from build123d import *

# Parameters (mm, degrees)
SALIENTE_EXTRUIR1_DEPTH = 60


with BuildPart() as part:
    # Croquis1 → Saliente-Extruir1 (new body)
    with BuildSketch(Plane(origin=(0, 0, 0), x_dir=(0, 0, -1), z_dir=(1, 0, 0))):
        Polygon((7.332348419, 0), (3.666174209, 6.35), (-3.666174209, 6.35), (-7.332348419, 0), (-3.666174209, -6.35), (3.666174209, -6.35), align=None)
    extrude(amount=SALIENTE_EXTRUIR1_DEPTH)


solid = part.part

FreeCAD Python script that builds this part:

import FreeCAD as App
import Part
import Sketcher
from FreeCAD import Vector
Q = App.Units.Quantity


def add_polygon(sketch, points):
    """Adds a closed chain of lines whose ends are joined by coincident constraints."""
    first, n = sketch.GeometryCount, len(points)
    for a, b in zip(points, points[1:] + points[:1]):
        sketch.addGeometry(Part.LineSegment(App.Vector(*a, 0), App.Vector(*b, 0)), False)
    for i in range(n):
        sketch.addConstraint(Sketcher.Constraint("Coincident", first + i, 2, first + (i + 1) % n, 1))

doc = App.newDocument("Part")
body = doc.addObject("PartDesign::Body", "Body")

# Sketch on YZ plane
sketch1 = doc.addObject("Sketcher::SketchObject", "Sketch")
body.addObject(sketch1)
sketch1.AttachmentSupport = (doc.YZ_Plane, [""])
sketch1.MapMode = "FlatFace"
add_polygon(sketch1, [(0, -7), (6, -4), (6, 4), (0, 7), (-6, 4), (-6, -4)])  # lines 0-5
sketch1.addConstraint(Sketcher.Constraint("Vertical", 1))
sketch1.addConstraint(Sketcher.Constraint("Vertical", 4))
sketch1.addConstraint(Sketcher.Constraint("Symmetric", 0, 2, 3, 2, -1, 1))
sketch1.addConstraint(Sketcher.Constraint("Symmetric", 2, 2, 5, 2, -1, 1))
sketch1.addConstraint(Sketcher.Constraint("PointOnObject", 2, 2, -2))
sketch1.addConstraint(Sketcher.Constraint("Parallel", 2, 5))
sketch1.addConstraint(Sketcher.Constraint("Horizontal", 1, 2, 3, 2))
sketch1.addConstraint(Sketcher.Constraint("Angle", 0, Q("30 deg")))
sketch1.addConstraint(Sketcher.Constraint("DistanceX", 3, 2, 1, 2, Q("12.7 mm")))
sketch1.addConstraint(Sketcher.Constraint("DistanceY", 1, 1, 1, 2, Q("7.332348 mm")))
pad1 = doc.addObject("PartDesign::Pad", "Pad")
body.addObject(pad1)
pad1.Profile = sketch1
pad1.Length = 60

doc.recompute()
